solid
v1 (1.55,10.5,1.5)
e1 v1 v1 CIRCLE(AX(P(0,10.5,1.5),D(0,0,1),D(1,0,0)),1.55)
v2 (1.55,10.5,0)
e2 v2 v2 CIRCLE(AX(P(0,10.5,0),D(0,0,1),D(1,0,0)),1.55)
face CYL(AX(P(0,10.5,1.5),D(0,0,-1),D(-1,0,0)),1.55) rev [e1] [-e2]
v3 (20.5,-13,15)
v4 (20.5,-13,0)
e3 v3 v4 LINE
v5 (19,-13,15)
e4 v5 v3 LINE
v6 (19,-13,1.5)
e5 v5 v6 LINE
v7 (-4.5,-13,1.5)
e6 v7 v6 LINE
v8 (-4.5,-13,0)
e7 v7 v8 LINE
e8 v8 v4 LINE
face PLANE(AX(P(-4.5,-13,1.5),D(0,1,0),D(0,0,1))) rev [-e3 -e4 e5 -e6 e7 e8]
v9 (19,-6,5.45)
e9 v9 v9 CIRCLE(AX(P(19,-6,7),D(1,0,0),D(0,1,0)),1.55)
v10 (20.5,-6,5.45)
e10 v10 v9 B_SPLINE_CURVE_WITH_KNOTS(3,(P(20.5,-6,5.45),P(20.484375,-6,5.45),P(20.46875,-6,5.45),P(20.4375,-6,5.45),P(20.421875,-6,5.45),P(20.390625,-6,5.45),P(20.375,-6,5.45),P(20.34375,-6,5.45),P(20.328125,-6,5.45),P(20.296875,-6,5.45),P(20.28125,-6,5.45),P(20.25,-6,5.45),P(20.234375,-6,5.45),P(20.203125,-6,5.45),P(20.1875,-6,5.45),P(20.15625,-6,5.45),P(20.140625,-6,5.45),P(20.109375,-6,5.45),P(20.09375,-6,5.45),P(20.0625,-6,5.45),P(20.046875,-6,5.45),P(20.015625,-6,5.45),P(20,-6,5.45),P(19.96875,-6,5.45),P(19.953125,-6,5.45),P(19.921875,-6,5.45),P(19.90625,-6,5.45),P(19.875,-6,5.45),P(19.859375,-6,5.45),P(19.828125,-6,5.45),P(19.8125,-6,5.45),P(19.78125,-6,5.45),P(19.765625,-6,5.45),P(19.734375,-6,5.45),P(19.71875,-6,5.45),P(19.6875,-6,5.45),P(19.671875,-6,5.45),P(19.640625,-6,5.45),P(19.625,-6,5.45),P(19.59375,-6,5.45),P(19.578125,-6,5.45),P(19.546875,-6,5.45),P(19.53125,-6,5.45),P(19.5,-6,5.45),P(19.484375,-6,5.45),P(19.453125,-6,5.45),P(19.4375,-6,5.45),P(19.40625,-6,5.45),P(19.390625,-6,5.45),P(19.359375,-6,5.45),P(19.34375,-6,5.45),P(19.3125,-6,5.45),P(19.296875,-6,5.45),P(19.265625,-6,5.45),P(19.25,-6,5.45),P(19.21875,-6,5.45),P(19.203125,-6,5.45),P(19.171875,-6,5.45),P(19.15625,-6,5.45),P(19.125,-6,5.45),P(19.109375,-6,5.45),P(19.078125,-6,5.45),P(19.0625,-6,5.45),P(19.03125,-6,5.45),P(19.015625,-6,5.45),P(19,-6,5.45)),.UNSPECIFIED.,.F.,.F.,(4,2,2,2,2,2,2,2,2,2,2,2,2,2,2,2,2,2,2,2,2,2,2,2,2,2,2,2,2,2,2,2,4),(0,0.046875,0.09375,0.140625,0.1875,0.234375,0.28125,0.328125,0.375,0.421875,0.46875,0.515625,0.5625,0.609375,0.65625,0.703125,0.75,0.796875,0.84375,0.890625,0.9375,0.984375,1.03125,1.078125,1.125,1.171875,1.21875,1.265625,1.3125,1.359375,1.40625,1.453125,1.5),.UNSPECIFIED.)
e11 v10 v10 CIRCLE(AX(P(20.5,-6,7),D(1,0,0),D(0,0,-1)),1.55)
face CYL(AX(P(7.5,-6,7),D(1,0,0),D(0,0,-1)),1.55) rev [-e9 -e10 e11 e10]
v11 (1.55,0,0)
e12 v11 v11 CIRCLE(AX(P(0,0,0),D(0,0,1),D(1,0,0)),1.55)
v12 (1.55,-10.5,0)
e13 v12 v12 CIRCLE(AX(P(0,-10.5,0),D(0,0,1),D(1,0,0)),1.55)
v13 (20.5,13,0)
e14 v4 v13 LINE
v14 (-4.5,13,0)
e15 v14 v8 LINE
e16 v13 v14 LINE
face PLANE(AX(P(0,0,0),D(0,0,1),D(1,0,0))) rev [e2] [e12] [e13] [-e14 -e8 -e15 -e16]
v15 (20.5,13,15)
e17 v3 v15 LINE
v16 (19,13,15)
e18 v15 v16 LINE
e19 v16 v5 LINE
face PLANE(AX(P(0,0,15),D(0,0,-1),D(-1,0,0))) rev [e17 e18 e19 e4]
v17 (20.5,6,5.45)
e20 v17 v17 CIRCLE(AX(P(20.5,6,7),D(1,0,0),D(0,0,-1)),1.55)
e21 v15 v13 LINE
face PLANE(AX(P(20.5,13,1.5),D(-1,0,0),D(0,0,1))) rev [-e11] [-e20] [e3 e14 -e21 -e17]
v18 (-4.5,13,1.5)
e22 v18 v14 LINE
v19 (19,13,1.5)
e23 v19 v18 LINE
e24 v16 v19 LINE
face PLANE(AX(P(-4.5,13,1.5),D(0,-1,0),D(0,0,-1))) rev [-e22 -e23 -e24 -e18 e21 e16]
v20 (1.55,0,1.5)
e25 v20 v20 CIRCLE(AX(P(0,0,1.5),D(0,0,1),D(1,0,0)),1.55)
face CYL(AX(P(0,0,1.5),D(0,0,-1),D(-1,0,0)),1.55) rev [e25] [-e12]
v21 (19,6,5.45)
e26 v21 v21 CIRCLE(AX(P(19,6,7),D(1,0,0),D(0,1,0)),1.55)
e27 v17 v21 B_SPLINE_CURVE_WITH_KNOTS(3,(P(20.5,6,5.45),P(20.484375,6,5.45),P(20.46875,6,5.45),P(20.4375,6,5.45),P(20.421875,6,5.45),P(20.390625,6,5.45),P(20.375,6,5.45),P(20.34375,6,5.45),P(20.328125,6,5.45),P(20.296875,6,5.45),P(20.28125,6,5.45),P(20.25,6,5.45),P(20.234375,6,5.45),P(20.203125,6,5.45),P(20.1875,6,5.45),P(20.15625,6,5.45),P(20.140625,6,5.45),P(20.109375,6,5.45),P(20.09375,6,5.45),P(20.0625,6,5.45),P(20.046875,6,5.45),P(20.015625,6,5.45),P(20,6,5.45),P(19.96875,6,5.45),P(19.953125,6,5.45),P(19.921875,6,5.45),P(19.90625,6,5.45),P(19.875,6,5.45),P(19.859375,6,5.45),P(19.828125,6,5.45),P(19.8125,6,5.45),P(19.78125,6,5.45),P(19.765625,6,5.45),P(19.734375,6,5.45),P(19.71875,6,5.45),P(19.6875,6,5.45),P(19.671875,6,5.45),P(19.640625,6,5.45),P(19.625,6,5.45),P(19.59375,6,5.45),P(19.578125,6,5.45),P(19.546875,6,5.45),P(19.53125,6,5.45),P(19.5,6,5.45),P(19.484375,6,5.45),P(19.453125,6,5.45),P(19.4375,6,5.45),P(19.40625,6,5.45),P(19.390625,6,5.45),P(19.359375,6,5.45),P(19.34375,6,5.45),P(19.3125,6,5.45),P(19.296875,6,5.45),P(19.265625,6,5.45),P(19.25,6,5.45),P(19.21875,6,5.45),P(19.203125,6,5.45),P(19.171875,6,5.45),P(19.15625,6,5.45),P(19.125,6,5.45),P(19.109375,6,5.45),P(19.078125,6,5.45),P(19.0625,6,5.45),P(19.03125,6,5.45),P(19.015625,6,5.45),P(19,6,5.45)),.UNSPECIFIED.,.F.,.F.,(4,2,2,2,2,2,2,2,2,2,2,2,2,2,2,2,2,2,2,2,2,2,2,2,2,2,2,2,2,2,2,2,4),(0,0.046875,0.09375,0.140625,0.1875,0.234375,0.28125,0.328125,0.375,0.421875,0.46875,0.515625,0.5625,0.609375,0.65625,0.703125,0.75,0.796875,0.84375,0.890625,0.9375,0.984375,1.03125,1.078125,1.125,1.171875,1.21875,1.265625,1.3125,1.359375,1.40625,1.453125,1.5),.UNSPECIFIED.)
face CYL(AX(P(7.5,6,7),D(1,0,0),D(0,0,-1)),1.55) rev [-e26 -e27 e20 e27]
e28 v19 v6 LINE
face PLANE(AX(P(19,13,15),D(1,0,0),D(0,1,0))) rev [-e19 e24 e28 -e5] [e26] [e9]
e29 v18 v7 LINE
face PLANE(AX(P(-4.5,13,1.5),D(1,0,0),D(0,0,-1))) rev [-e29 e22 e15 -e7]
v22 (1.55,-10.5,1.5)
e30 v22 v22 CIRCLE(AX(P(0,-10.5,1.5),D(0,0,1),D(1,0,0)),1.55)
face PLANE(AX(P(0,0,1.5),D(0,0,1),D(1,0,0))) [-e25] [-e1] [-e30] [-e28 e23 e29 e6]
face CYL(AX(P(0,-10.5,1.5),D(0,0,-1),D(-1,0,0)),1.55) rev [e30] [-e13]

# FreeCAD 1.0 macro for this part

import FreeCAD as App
import Part
import Sketcher

V = App.Vector
Q = App.Units.Quantity


def add_polygon(sketch, points):
    """Adds a closed chain of lines whose ends are joined by coincident constraints."""
    first, n = sketch.GeometryCount, len(points)
    for a, b in zip(points, points[1:] + points[:1]):
        sketch.addGeometry(Part.LineSegment(App.Vector(*a, 0), App.Vector(*b, 0)), False)
    for i in range(n):
        sketch.addConstraint(Sketcher.Constraint("Coincident", first + i, 2, first + (i + 1) % n, 1))

doc = App.newDocument("Part")
params = doc.addObject("Spreadsheet::Sheet", "Params")
for row, (alias, value) in enumerate([
    ("sketch1_diameter", "3.1 mm"),
    ("sketch1_width", "25 mm"),
    ("sketch1_height", "26 mm"),
    ("pad1_length", "1.5 mm"),
    ("sketch2_height", "26 mm"),
    ("sketch2_width", "1.5 mm"),
    ("pad2_length", "13.5 mm"),
    ("sketch3_diameter", "3.1 mm"),
    ("pocket1_length", "13 mm"),
], start=1):
    params.set(f"A{row}", alias)
    params.set(f"B{row}", "=" + value)
    params.setAlias(f"B{row}", alias)

body = doc.addObject("PartDesign::Body", "Body")

# Sketch on XY plane
sketch1 = body.newObject("Sketcher::SketchObject", "Sketch")
sketch1.AttachmentSupport = (doc.getObject("XY_Plane"), [""])
sketch1.MapMode = "FlatFace"
add_polygon(sketch1, [(-4.5, 13), (-4.5, -13), (20.5, -13), (20.5, 13)])  # lines 0-3
sketch1.addGeometry(Part.Circle(V(0, -10.5, 0), V(0, 0, 1), 1.6), False)  # 4
sketch1.addGeometry(Part.Circle(V(0, 0, 0), V(0, 0, 1), 1.6), False)  # 5
sketch1.addGeometry(Part.Circle(V(0, 10.5, 0), V(0, 0, 1), 1.6), False)  # 6
sketch1.addConstraint([
    Sketcher.Constraint("Vertical", 0),
    Sketcher.Constraint("Horizontal", 1),
    Sketcher.Constraint("Vertical", 2),
    Sketcher.Constraint("Horizontal", 3),
    Sketcher.Constraint("Coincident", 5, 3, -1, 1),
    Sketcher.Constraint("Equal", 4, 5),
    Sketcher.Constraint("Equal", 5, 6),
    Sketcher.Constraint("Symmetric", 4, 3, 6, 3, -1, 1),
    Sketcher.Constraint("PointOnObject", 4, 3, -2),
    Sketcher.Constraint("Diameter", 4, Q("3.1 mm")),
    Sketcher.Constraint("DistanceX", 1, 1, 1, 2, Q("25 mm")),
    Sketcher.Constraint("DistanceY", 0, 2, 0, 1, Q("26 mm")),
    Sketcher.Constraint("DistanceY", 0, 2, -1, 1, Q("13 mm")),
    Sketcher.Constraint("DistanceY", 4, 3, 6, 3, Q("21 mm")),
    Sketcher.Constraint("DistanceX", 0, 2, -1, 1, Q("4.5 mm")),
])
sketch1.setExpression("Constraints[13]", "Params.sketch1_diameter")
sketch1.setExpression("Constraints[14]", "Params.sketch1_width")
sketch1.setExpression("Constraints[15]", "Params.sketch1_height")
pad1 = body.newObject("PartDesign::Pad", "Pad")
pad1.Profile = sketch1
pad1.setExpression("Length", "Params.pad1_length")

# Sketch on XY plane
sketch2 = body.newObject("Sketcher::SketchObject", "Sketch001")
sketch2.AttachmentSupport = (doc.getObject("XY_Plane"), [""])
sketch2.MapMode = "FlatFace"
sketch2.AttachmentOffset = App.Placement(V(0, 0, 1.5), App.Rotation())
add_polygon(sketch2, [(19, 13), (19, -13), (20.5, -13), (20.5, 13)])  # lines 0-3
sketch2.addConstraint([
    Sketcher.Constraint("Vertical", 0),
    Sketcher.Constraint("Horizontal", 1),
    Sketcher.Constraint("Vertical", 2),
    Sketcher.Constraint("Horizontal", 3),
    Sketcher.Constraint("DistanceY", 0, 2, 0, 1, Q("26 mm")),
    Sketcher.Constraint("DistanceX", 1, 1, 1, 2, Q("1.5 mm")),
    Sketcher.Constraint("DistanceX", -1, 1, 0, 2, Q("19 mm")),
    Sketcher.Constraint("DistanceY", 0, 2, -1, 1, Q("13 mm")),
])
sketch2.setExpression("Constraints[8]", "Params.sketch2_height")
sketch2.setExpression("Constraints[9]", "Params.sketch2_width")
pad2 = body.newObject("PartDesign::Pad", "Pad001")
pad2.Profile = sketch2
pad2.setExpression("Length", "Params.pad2_length")

# Sketch on YZ plane
sketch3 = body.newObject("Sketcher::SketchObject", "Sketch002")
sketch3.AttachmentSupport = (doc.getObject("YZ_Plane"), [""])
sketch3.MapMode = "FlatFace"
sketch3.AttachmentOffset = App.Placement(V(0, 0, 20.5), App.Rotation())
sketch3.addGeometry([
    Part.Circle(V(6, 7, 0), V(0, 0, 1), 1.6),
    Part.Circle(V(-6, 7, 0), V(0, 0, 1), 1.6),
], False)
sketch3.addConstraint([
    Sketcher.Constraint("Equal", 0, 1),
    Sketcher.Constraint("Symmetric", 0, 3, 1, 3, -2),
    Sketcher.Constraint("Diameter", 0, Q("3.1 mm")),
    Sketcher.Constraint("DistanceX", -1, 1, 0, 3, Q("6 mm")),
    Sketcher.Constraint("DistanceY", -1, 1, 0, 3, Q("7 mm")),
])
sketch3.setExpression("Constraints[2]", "Params.sketch3_diameter")
pocket1 = body.newObject("PartDesign::Pocket", "Pocket")
pocket1.Profile = sketch3
pocket1.setExpression("Length", "Params.pocket1_length")

doc.recompute()
